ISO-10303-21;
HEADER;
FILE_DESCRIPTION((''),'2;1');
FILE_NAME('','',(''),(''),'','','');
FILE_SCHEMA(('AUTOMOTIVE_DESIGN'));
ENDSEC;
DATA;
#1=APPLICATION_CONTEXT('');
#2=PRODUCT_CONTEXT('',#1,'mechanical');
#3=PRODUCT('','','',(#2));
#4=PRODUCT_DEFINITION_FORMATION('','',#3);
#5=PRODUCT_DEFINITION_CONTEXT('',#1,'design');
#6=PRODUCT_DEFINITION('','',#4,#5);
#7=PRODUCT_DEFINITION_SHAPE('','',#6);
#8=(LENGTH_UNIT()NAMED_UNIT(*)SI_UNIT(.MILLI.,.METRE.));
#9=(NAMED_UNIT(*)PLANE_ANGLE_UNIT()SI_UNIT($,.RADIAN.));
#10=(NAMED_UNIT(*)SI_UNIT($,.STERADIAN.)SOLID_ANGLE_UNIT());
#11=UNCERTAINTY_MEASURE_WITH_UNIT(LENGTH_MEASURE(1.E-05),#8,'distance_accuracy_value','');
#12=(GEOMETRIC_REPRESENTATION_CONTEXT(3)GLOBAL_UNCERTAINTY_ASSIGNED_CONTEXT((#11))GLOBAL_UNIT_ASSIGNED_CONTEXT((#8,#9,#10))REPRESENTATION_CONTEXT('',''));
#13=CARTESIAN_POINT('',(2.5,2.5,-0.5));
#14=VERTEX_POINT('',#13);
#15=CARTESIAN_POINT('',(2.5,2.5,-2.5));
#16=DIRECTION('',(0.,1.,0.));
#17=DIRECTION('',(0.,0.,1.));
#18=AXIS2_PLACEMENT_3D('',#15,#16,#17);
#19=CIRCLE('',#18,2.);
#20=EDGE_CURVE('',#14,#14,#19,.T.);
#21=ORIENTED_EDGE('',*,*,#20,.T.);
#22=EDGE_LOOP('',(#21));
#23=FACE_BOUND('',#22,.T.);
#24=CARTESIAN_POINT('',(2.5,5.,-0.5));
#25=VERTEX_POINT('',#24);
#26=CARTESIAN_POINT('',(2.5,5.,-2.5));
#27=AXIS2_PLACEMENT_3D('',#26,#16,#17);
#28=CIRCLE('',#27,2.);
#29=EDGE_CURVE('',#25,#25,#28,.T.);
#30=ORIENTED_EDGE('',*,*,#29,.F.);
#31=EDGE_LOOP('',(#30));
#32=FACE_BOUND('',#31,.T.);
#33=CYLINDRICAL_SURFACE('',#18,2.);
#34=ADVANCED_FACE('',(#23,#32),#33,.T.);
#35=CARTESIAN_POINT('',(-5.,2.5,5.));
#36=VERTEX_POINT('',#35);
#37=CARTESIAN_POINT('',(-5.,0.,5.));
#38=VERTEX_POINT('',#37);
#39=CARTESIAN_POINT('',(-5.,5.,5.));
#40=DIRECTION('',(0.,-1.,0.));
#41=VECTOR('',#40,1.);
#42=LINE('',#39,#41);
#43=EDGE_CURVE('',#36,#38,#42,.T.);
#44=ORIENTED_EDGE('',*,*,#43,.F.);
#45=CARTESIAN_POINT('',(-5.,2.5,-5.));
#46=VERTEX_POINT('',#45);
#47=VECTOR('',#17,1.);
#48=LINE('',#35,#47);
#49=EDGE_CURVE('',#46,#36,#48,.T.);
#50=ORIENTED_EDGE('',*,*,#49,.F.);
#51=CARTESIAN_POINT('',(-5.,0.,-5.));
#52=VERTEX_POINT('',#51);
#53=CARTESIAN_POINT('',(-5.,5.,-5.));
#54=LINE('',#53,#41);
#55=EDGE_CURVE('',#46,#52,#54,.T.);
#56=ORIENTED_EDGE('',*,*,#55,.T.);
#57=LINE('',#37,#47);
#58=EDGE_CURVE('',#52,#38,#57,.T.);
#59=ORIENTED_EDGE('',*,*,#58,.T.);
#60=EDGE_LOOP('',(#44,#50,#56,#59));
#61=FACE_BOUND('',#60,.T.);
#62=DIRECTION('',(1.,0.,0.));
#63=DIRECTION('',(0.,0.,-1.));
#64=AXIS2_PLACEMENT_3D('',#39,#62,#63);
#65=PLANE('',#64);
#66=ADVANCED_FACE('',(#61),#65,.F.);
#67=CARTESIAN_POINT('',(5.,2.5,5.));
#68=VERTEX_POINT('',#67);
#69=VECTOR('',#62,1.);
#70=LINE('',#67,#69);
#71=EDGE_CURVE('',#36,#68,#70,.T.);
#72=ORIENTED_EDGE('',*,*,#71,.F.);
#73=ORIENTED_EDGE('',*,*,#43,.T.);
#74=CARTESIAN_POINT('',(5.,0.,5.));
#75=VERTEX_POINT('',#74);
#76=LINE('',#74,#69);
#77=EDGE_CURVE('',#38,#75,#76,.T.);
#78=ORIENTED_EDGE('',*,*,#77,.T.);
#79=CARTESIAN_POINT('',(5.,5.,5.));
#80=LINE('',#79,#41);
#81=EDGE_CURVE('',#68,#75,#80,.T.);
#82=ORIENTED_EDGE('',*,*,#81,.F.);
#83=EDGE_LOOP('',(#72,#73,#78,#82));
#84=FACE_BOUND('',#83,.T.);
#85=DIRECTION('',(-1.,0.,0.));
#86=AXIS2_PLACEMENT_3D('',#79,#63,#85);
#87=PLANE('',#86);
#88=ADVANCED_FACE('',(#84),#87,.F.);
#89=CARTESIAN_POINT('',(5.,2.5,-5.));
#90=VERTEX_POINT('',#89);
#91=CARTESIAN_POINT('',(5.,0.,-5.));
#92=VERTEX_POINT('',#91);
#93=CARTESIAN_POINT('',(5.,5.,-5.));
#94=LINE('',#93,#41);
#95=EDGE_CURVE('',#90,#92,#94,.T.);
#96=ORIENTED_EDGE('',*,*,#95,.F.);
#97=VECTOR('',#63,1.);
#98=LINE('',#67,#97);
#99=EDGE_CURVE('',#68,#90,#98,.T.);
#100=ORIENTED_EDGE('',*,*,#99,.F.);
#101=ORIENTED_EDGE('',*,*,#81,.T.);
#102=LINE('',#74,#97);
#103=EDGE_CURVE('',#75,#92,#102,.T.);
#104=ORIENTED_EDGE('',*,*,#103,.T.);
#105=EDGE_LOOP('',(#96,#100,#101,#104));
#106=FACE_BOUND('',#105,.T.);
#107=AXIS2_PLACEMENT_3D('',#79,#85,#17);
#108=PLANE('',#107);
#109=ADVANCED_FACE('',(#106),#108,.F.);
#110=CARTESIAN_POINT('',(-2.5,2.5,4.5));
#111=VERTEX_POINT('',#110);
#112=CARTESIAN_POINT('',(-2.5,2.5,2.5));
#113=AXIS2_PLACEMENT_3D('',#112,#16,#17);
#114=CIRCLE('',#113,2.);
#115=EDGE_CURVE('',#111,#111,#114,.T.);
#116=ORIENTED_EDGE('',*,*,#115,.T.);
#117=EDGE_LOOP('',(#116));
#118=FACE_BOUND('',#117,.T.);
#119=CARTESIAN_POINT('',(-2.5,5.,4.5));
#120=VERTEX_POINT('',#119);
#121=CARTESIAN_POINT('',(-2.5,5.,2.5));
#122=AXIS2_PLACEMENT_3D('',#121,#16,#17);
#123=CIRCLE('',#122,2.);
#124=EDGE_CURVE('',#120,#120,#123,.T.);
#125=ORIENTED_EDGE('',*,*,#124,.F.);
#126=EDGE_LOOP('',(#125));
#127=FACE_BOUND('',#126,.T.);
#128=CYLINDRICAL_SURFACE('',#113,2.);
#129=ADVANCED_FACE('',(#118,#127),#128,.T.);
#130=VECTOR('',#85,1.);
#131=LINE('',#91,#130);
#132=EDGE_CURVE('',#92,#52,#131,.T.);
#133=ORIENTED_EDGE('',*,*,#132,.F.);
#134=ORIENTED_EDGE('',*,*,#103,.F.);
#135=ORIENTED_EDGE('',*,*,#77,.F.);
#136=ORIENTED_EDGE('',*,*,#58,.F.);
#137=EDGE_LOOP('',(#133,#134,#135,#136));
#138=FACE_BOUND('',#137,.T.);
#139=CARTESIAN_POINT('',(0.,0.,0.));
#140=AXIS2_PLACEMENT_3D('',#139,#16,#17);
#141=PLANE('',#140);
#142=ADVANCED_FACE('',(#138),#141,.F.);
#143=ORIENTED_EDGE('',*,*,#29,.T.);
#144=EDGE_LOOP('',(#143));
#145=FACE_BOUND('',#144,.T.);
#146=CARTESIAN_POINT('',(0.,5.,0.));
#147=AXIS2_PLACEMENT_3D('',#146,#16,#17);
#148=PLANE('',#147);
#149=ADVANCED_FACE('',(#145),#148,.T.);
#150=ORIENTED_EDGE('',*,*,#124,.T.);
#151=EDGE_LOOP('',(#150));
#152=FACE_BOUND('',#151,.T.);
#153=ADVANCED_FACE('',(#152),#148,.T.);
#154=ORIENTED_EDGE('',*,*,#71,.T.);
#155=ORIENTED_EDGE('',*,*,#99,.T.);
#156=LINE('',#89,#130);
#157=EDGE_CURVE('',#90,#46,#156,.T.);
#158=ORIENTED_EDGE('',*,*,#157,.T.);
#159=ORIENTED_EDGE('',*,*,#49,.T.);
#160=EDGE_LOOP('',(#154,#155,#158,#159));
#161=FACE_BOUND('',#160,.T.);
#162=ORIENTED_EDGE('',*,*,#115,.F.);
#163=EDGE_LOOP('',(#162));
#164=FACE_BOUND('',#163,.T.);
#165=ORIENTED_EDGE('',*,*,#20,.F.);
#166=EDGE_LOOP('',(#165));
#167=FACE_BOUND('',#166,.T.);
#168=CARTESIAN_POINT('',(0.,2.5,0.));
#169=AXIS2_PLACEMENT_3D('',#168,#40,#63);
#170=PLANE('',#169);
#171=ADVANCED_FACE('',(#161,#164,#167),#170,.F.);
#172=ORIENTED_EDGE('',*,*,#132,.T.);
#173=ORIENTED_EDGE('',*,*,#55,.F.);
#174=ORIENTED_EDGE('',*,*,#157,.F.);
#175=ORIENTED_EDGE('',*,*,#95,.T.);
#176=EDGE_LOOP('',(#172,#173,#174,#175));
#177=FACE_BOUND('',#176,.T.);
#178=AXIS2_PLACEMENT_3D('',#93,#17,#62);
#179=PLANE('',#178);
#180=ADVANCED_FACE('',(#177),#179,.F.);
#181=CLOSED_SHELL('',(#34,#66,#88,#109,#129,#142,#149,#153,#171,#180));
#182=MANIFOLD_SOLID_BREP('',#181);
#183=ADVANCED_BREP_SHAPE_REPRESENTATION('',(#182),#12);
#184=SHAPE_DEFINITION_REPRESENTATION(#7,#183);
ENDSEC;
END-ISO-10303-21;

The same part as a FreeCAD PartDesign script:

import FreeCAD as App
import Part
import Sketcher

V = App.Vector
Q = App.Units.Quantity

doc = App.newDocument("Part")
body = doc.addObject("PartDesign::Body", "Body")

# Sketch on XZ plane
sketch1 = body.newObject("Sketcher::SketchObject", "Sketch")
sketch1.AttachmentSupport = (doc.getObject("XZ_Plane"), [""])
sketch1.MapMode = "FlatFace"
sketch1.addGeometry(Part.LineSegment(V(-5, -5, 0), V(-5, 5, 0)), False)
sketch1.addGeometry(Part.LineSegment(V(-5, 5, 0), V(5, 5, 0)), False)
sketch1.addGeometry(Part.LineSegment(V(5, 5, 0), V(5, -5, 0)), False)
sketch1.addGeometry(Part.LineSegment(V(5, -5, 0), V(-5, -5, 0)), False)
sketch1.addConstraint(Sketcher.Constraint("Coincident", 0, 2, 1, 1))
sketch1.addConstraint(Sketcher.Constraint("Coincident", 1, 2, 2, 1))
sketch1.addConstraint(Sketcher.Constraint("Coincident", 2, 2, 3, 1))
sketch1.addConstraint(Sketcher.Constraint("Coincident", 3, 2, 0, 1))
sketch1.addConstraint(Sketcher.Constraint("Vertical", 0))
sketch1.addConstraint(Sketcher.Constraint("Horizontal", 1))
sketch1.addConstraint(Sketcher.Constraint("Vertical", 2))
sketch1.addConstraint(Sketcher.Constraint("Horizontal", 3))
sketch1.addConstraint(Sketcher.Constraint("Symmetric", 0, 2, 2, 2, -1, 1))
sketch1.addConstraint(Sketcher.Constraint("Equal", 3, 0))
sketch1.addConstraint(Sketcher.Constraint("DistanceX", 1, 1, 1, 2, Q("10 mm")))
pad1 = body.newObject("PartDesign::Pad", "Pad")
pad1.Profile = sketch1
pad1.Length = 5
pad1.Reversed = True

# Sketch on XZ plane
sketch2 = body.newObject("Sketcher::SketchObject", "Sketch001")
sketch2.AttachmentSupport = (doc.getObject("XZ_Plane"), [""])
sketch2.MapMode = "FlatFace"
sketch2.AttachmentOffset = App.Placement(V(0, 0, -5), App.Rotation())
sketch2.addGeometry(Part.LineSegment(V(-5, -5, 0), V(-5, 5, 0)), False)
sketch2.addGeometry(Part.LineSegment(V(-5, 5, 0), V(5, 5, 0)), False)
sketch2.addGeometry(Part.LineSegment(V(5, 5, 0), V(5, -5, 0)), False)
sketch2.addGeometry(Part.LineSegment(V(5, -5, 0), V(-5, -5, 0)), False)
sketch2.addGeometry(Part.Circle(V(-2.5, 2.5, 0), V(0, 0, 1), 2), False)
sketch2.addGeometry(Part.Circle(V(2.5, -2.5, 0), V(0, 0, 1), 2), False)
sketch2.addConstraint(Sketcher.Constraint("Coincident", 0, 2, 1, 1))
sketch2.addConstraint(Sketcher.Constraint("Coincident", 1, 2, 2, 1))
sketch2.addConstraint(Sketcher.Constraint("Coincident", 2, 2, 3, 1))
sketch2.addConstraint(Sketcher.Constraint("Coincident", 3, 2, 0, 1))
sketch2.addConstraint(Sketcher.Constraint("Vertical", 0))
sketch2.addConstraint(Sketcher.Constraint("Horizontal", 1))
sketch2.addConstraint(Sketcher.Constraint("Vertical", 2))
sketch2.addConstraint(Sketcher.Constraint("Horizontal", 3))
sketch2.addConstraint(Sketcher.Constraint("Equal", 4, 5))
sketch2.addConstraint(Sketcher.Constraint("Symmetric", 4, 3, 5, 3, -1, 1))
sketch2.addConstraint(Sketcher.Constraint("Symmetric", 0, 2, 2, 2, -1, 1))
sketch2.addConstraint(Sketcher.Constraint("Equal", 3, 0))
sketch2.addConstraint(Sketcher.Constraint("Diameter", 4, Q("4 mm")))
sketch2.addConstraint(Sketcher.Constraint("DistanceX", 1, 1, 1, 2, Q("10 mm")))
sketch2.addConstraint(Sketcher.Constraint("DistanceX", 4, 3, 5, 3, Q("5 mm")))
sketch2.addConstraint(Sketcher.Constraint("DistanceY", 5, 3, 4, 3, Q("5 mm")))
pocket1 = body.newObject("PartDesign::Pocket", "Pocket")
pocket1.Profile = sketch2
pocket1.Length = 2.5
pocket1.Reversed = True

doc.recompute()
